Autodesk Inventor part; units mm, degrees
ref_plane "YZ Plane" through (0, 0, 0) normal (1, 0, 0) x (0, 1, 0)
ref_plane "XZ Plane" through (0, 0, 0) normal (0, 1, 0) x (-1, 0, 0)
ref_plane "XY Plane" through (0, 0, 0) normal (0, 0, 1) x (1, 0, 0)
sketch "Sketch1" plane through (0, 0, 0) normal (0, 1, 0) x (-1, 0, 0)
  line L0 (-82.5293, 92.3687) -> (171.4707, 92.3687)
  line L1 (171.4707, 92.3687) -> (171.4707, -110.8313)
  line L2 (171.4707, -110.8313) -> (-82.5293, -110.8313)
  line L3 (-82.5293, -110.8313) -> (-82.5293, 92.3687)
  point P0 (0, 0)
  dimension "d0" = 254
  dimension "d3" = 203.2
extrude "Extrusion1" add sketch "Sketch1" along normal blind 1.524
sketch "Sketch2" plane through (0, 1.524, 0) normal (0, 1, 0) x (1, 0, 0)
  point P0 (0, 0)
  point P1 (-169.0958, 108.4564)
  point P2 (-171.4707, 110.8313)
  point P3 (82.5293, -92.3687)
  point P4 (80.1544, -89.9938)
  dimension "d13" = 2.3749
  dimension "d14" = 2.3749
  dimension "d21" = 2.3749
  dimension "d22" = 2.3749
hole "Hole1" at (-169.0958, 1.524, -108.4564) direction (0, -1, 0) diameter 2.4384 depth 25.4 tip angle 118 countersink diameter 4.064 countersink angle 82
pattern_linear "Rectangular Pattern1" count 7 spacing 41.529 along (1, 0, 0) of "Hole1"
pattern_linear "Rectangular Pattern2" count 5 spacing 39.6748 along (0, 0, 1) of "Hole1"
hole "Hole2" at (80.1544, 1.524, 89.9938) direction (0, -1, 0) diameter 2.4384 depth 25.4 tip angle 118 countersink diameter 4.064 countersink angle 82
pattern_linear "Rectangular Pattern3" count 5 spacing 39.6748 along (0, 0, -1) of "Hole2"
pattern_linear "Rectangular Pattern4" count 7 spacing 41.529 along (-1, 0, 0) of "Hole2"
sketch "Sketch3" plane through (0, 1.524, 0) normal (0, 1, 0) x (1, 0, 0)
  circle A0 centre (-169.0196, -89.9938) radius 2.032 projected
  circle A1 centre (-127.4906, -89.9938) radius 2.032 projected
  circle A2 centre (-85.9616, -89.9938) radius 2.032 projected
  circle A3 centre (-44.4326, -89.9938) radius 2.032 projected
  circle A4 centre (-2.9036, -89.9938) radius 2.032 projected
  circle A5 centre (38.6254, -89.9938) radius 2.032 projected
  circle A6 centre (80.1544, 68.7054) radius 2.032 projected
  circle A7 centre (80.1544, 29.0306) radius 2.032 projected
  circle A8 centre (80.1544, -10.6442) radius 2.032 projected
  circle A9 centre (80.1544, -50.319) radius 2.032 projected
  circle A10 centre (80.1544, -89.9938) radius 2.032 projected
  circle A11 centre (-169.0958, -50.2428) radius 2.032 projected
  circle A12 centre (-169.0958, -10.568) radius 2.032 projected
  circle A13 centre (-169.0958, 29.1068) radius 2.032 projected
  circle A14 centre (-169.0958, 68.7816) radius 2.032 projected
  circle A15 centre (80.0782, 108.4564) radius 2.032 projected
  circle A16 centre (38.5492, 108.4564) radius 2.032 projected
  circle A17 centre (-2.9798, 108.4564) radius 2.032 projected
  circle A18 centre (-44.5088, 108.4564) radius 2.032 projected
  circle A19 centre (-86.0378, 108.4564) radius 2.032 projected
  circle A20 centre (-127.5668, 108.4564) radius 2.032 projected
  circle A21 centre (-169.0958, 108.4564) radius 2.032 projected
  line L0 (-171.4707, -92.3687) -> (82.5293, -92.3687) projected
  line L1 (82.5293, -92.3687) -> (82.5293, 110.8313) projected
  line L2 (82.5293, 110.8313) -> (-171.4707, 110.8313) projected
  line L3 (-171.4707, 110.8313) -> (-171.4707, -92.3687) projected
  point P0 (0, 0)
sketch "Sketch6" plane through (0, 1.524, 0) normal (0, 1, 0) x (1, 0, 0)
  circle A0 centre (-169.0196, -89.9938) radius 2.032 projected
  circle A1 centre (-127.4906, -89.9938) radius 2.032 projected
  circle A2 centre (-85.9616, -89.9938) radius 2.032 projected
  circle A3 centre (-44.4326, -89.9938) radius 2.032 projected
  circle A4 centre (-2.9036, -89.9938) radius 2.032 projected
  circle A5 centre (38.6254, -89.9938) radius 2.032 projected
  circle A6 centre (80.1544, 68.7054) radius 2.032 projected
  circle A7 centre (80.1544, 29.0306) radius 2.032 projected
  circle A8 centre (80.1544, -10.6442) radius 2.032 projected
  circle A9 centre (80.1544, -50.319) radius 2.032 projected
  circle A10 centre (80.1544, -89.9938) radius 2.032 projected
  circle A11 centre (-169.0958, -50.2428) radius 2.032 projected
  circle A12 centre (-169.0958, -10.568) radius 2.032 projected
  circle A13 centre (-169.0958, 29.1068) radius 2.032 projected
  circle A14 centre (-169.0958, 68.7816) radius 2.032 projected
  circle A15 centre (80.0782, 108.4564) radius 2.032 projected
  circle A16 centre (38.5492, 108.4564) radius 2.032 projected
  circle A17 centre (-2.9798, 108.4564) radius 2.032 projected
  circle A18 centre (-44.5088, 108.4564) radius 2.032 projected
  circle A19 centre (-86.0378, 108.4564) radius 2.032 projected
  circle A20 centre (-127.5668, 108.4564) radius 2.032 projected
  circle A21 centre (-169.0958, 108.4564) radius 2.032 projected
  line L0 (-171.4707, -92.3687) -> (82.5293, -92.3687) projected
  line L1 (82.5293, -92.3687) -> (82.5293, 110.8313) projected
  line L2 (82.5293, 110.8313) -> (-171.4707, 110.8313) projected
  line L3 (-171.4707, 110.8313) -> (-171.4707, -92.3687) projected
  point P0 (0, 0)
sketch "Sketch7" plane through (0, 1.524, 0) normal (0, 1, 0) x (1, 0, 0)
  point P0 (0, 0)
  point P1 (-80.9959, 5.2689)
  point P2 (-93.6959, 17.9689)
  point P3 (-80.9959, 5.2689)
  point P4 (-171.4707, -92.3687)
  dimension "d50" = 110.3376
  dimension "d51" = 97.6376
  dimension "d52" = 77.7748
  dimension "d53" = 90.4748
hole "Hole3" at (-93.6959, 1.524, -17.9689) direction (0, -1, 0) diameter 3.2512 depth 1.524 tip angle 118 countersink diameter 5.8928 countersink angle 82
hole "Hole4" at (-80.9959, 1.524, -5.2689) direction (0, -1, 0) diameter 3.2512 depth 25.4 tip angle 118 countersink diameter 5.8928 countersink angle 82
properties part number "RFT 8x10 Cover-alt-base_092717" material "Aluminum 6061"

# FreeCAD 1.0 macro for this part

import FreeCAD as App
import Part
import Sketcher

V = App.Vector
Q = App.Units.Quantity


def add_polygon(sketch, points):
    """Adds a closed chain of lines whose ends are joined by coincident constraints."""
    first, n = sketch.GeometryCount, len(points)
    for a, b in zip(points, points[1:] + points[:1]):
        sketch.addGeometry(Part.LineSegment(App.Vector(*a, 0), App.Vector(*b, 0)), False)
    for i in range(n):
        sketch.addConstraint(Sketcher.Constraint("Coincident", first + i, 2, first + (i + 1) % n, 1))

doc = App.newDocument("Part")
body = doc.addObject("PartDesign::Body", "Body")

# Sketch on XZ plane
sketch1 = body.newObject("Sketcher::SketchObject", "Sketch")
sketch1.AttachmentSupport = (doc.getObject("XZ_Plane"), [""])
sketch1.MapMode = "FlatFace"
add_polygon(sketch1, [(-171.4707, 92.3687), (82.5293, 92.3687), (82.5293, -110.8313), (-171.4707, -110.8313)])  # lines 0-3
sketch1.addConstraint(Sketcher.Constraint("Horizontal", 0))
sketch1.addConstraint(Sketcher.Constraint("Vertical", 1))
sketch1.addConstraint(Sketcher.Constraint("Horizontal", 2))
sketch1.addConstraint(Sketcher.Constraint("Vertical", 3))
sketch1.addConstraint(Sketcher.Constraint("DistanceX", 0, 1, 0, 2, Q("10 in")))
sketch1.addConstraint(Sketcher.Constraint("DistanceY", 1, 2, 1, 1, Q("8 in")))
sketch1.addConstraint(Sketcher.Constraint("DistanceX", -1, 1, 0, 2, Q("82.5293 mm")))
sketch1.addConstraint(Sketcher.Constraint("DistanceY", -1, 1, 0, 2, Q("92.3687 mm")))
pad1 = body.newObject("PartDesign::Pad", "Pad")
pad1.Profile = sketch1
pad1.Length = Q("0.06 in")
pad1.Reversed = True

# Sketch on XZ plane
sketch2 = body.newObject("Sketcher::SketchObject", "Sketch001")
sketch2.AttachmentSupport = (doc.getObject("XZ_Plane"), [""])
sketch2.MapMode = "FlatFace"
sketch2.AttachmentOffset = App.Placement(V(0, 0, -0.06 * 25.4), App.Rotation())
sketch2.addGeometry(Part.Circle(V(-169.0958, -108.4564, 0), V(0, 0, 1), 1.2192), False)
sketch2.addConstraint(Sketcher.Constraint("Diameter", 0, Q("0.096 in")))
sketch2.addConstraint(Sketcher.Constraint("DistanceX", 0, 3, -1, 1, Q("169.0958 mm")))
sketch2.addConstraint(Sketcher.Constraint("DistanceY", 0, 3, -1, 1, Q("108.4564 mm")))
doc.recompute()
hole = body.newObject("PartDesign::Hole", "Hole")
hole.Profile = sketch2
hole.ThreadType = "None"
hole.Diameter = Q("0.096 in")
hole.DepthType = "Dimension"
hole.Depth = Q("1 in")
hole.DrillPoint = "Angled"
hole.DrillPointAngle = 118
hole.HoleCutType = "Countersink"
hole.HoleCutDiameter = Q("0.16 in")
hole.HoleCutCountersinkAngle = 82
hole.Reversed = True
doc.recompute()

linearpattern = body.newObject("PartDesign::LinearPattern", "LinearPattern")
linearpattern.Originals = [hole]
linearpattern.Direction = (doc.getObject("X_Axis"), [""])
linearpattern.Mode = "offset"
linearpattern.Offset = Q("1.635 in")
linearpattern.Occurrences = 7
body.Tip = linearpattern
doc.recompute()

linearpattern2 = body.newObject("PartDesign::LinearPattern", "LinearPattern001")
linearpattern2.Originals = [hole]
linearpattern2.Direction = (doc.getObject("Z_Axis"), [""])
linearpattern2.Mode = "offset"
linearpattern2.Offset = Q("1.562 in")
linearpattern2.Occurrences = 5
body.Tip = linearpattern2

# Sketch on XZ plane
sketch3 = body.newObject("Sketcher::SketchObject", "Sketch002")
sketch3.AttachmentSupport = (doc.getObject("XZ_Plane"), [""])
sketch3.MapMode = "FlatFace"
sketch3.AttachmentOffset = App.Placement(V(0, 0, -0.06 * 25.4), App.Rotation())
sketch3.addGeometry(Part.Circle(V(80.1544, 89.9938, 0), V(0, 0, 1), 1.2192), False)
sketch3.addConstraint(Sketcher.Constraint("Diameter", 0, Q("0.096 in")))
sketch3.addConstraint(Sketcher.Constraint("DistanceX", -1, 1, 0, 3, Q("80.1544 mm")))
sketch3.addConstraint(Sketcher.Constraint("DistanceY", -1, 1, 0, 3, Q("89.9938 mm")))
doc.recompute()
hole2 = body.newObject("PartDesign::Hole", "Hole001")
hole2.Profile = sketch3
hole2.ThreadType = "None"
hole2.Diameter = Q("0.096 in")
hole2.DepthType = "Dimension"
hole2.Depth = Q("1 in")
hole2.DrillPoint = "Angled"
hole2.DrillPointAngle = 118
hole2.HoleCutType = "Countersink"
hole2.HoleCutDiameter = Q("0.16 in")
hole2.HoleCutCountersinkAngle = 82
hole2.Reversed = True
doc.recompute()

linearpattern3 = body.newObject("PartDesign::LinearPattern", "LinearPattern002")
linearpattern3.Originals = [hole2]
linearpattern3.Direction = (doc.getObject("Z_Axis"), [""])
linearpattern3.Mode = "offset"
linearpattern3.Offset = Q("1.562 in")
linearpattern3.Occurrences = 5
linearpattern3.Reversed = True
body.Tip = linearpattern3
doc.recompute()

linearpattern4 = body.newObject("PartDesign::LinearPattern", "LinearPattern003")
linearpattern4.Originals = [hole2]
linearpattern4.Direction = (doc.getObject("X_Axis"), [""])
linearpattern4.Mode = "offset"
linearpattern4.Offset = Q("1.635 in")
linearpattern4.Occurrences = 7
linearpattern4.Reversed = True
body.Tip = linearpattern4

# Sketch on XZ plane
sketch4 = body.newObject("Sketcher::SketchObject", "Sketch003")
sketch4.AttachmentSupport = (doc.getObject("XZ_Plane"), [""])
sketch4.MapMode = "FlatFace"
sketch4.AttachmentOffset = App.Placement(V(0, 0, -0.06 * 25.4), App.Rotation())
sketch4.addGeometry(Part.Circle(V(-93.6959, -17.9689, 0), V(0, 0, 1), 1.6256), False)
sketch4.addConstraint(Sketcher.Constraint("Diameter", 0, Q("0.128 in")))
sketch4.addConstraint(Sketcher.Constraint("DistanceX", 0, 3, -1, 1, Q("93.696 mm")))
sketch4.addConstraint(Sketcher.Constraint("DistanceY", 0, 3, -1, 1, Q("17.969 mm")))
doc.recompute()
hole3 = body.newObject("PartDesign::Hole", "Hole002")
hole3.Profile = sketch4
hole3.ThreadType = "None"
hole3.Diameter = Q("0.128 in")
hole3.DepthType = "Dimension"
hole3.Depth = Q("0.06 in")
hole3.DrillPoint = "Angled"
hole3.DrillPointAngle = 118
hole3.HoleCutType = "Countersink"
hole3.HoleCutDiameter = Q("0.232 in")
hole3.HoleCutCountersinkAngle = 82
hole3.Reversed = True

# Sketch on XZ plane
sketch5 = body.newObject("Sketcher::SketchObject", "Sketch004")
sketch5.AttachmentSupport = (doc.getObject("XZ_Plane"), [""])
sketch5.MapMode = "FlatFace"
sketch5.AttachmentOffset = App.Placement(V(0, 0, -0.06 * 25.4), App.Rotation())
sketch5.addGeometry(Part.Circle(V(-80.9959, -5.2689, 0), V(0, 0, 1), 1.6256), False)
sketch5.addConstraint(Sketcher.Constraint("Diameter", 0, Q("0.128 in")))
sketch5.addConstraint(Sketcher.Constraint("DistanceX", 0, 3, -1, 1, Q("80.996 mm")))
sketch5.addConstraint(Sketcher.Constraint("DistanceY", 0, 3, -1, 1, Q("5.269 mm")))
doc.recompute()
hole4 = body.newObject("PartDesign::Hole", "Hole003")
hole4.Profile = sketch5
hole4.ThreadType = "None"
hole4.Diameter = Q("0.128 in")
hole4.DepthType = "Dimension"
hole4.Depth = Q("1 in")
hole4.DrillPoint = "Angled"
hole4.DrillPointAngle = 118
hole4.HoleCutType = "Countersink"
hole4.HoleCutDiameter = Q("0.232 in")
hole4.HoleCutCountersinkAngle = 82
hole4.Reversed = True

doc.recompute()
